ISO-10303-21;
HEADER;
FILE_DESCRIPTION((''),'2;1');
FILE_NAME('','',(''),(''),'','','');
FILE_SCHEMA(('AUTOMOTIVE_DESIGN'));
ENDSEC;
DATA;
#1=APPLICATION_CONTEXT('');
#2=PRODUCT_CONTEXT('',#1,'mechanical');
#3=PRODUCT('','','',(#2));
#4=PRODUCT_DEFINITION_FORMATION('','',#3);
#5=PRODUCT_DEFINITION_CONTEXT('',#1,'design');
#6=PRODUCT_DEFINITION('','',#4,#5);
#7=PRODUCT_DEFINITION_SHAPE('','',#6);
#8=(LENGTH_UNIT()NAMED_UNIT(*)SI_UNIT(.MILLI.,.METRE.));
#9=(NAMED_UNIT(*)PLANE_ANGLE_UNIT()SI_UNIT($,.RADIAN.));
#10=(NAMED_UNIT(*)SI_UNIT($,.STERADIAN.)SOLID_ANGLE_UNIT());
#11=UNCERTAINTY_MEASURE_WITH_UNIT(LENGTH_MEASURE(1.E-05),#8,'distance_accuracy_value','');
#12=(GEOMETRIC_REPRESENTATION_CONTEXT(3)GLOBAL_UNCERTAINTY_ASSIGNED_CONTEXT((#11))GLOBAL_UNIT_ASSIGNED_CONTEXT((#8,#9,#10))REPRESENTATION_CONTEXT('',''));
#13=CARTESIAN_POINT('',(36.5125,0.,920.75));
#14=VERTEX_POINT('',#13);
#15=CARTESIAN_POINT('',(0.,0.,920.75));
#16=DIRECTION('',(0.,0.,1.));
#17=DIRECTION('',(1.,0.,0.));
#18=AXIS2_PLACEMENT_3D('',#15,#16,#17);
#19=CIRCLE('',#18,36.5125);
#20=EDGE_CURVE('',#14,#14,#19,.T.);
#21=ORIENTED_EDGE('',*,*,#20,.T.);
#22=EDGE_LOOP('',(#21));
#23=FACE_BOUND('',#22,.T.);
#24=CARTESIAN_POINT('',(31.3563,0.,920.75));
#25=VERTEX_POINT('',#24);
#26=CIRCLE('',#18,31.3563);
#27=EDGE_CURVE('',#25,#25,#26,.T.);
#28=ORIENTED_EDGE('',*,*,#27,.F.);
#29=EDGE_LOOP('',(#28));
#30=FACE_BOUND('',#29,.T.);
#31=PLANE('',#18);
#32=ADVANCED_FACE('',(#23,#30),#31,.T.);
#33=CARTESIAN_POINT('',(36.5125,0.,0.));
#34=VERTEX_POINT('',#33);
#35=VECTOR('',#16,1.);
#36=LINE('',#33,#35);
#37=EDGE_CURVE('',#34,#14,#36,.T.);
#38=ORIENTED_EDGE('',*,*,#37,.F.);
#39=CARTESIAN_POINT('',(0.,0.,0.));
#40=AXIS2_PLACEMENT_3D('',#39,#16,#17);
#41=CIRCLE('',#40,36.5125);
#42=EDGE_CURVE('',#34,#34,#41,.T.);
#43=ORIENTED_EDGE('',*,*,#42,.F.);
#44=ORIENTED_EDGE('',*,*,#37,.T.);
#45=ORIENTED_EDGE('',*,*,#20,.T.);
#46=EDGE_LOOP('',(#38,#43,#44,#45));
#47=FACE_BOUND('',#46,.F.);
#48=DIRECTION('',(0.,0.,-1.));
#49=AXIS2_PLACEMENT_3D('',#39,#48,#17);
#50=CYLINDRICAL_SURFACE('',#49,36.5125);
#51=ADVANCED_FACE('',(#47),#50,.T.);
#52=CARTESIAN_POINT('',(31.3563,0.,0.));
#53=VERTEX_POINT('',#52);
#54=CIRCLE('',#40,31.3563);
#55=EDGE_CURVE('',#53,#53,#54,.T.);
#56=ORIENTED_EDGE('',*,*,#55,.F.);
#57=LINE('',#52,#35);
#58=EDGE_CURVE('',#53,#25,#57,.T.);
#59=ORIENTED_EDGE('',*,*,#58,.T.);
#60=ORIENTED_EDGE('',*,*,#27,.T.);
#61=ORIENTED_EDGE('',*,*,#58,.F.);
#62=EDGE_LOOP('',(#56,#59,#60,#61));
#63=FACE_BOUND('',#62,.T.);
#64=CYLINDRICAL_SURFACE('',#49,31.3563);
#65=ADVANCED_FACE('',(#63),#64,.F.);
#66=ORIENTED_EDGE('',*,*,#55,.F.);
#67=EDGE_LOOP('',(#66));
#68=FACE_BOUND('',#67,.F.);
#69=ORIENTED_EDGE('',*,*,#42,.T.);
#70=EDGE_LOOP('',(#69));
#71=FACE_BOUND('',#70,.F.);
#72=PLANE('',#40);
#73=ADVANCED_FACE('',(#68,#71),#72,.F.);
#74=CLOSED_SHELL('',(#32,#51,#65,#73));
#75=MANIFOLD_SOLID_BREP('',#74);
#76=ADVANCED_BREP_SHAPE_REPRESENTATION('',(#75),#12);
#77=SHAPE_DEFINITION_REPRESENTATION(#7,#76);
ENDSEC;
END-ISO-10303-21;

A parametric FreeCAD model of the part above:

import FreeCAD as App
import Part
import Sketcher
Q = App.Units.Quantity

doc = App.newDocument("Part")
body = doc.addObject("PartDesign::Body", "Body")

# Sketch on XY plane
sketch1 = doc.addObject("Sketcher::SketchObject", "Sketch")
body.addObject(sketch1)
sketch1.AttachmentSupport = (doc.XY_Plane, [""])
sketch1.MapMode = "FlatFace"
sketch1.addGeometry(Part.Circle(App.Vector(0, 0, 0), App.Vector(0, 0, 1), 37), False)
sketch1.addGeometry(Part.Circle(App.Vector(0, 0, 0), App.Vector(0, 0, 1), 31), False)
sketch1.addConstraint(Sketcher.Constraint("Coincident", 0, 3, -1, 1))
sketch1.addConstraint(Sketcher.Constraint("Coincident", 1, 3, -1, 1))
sketch1.addConstraint(Sketcher.Constraint("Diameter", 0, Q("2.875 in")))
sketch1.addConstraint(Sketcher.Constraint("Diameter", 1, Q("2.469 in")))
pad1 = doc.addObject("PartDesign::Pad", "Pad")
body.addObject(pad1)
pad1.Profile = sketch1
pad1.Length = Q("36.25 in")

doc.recompute()
